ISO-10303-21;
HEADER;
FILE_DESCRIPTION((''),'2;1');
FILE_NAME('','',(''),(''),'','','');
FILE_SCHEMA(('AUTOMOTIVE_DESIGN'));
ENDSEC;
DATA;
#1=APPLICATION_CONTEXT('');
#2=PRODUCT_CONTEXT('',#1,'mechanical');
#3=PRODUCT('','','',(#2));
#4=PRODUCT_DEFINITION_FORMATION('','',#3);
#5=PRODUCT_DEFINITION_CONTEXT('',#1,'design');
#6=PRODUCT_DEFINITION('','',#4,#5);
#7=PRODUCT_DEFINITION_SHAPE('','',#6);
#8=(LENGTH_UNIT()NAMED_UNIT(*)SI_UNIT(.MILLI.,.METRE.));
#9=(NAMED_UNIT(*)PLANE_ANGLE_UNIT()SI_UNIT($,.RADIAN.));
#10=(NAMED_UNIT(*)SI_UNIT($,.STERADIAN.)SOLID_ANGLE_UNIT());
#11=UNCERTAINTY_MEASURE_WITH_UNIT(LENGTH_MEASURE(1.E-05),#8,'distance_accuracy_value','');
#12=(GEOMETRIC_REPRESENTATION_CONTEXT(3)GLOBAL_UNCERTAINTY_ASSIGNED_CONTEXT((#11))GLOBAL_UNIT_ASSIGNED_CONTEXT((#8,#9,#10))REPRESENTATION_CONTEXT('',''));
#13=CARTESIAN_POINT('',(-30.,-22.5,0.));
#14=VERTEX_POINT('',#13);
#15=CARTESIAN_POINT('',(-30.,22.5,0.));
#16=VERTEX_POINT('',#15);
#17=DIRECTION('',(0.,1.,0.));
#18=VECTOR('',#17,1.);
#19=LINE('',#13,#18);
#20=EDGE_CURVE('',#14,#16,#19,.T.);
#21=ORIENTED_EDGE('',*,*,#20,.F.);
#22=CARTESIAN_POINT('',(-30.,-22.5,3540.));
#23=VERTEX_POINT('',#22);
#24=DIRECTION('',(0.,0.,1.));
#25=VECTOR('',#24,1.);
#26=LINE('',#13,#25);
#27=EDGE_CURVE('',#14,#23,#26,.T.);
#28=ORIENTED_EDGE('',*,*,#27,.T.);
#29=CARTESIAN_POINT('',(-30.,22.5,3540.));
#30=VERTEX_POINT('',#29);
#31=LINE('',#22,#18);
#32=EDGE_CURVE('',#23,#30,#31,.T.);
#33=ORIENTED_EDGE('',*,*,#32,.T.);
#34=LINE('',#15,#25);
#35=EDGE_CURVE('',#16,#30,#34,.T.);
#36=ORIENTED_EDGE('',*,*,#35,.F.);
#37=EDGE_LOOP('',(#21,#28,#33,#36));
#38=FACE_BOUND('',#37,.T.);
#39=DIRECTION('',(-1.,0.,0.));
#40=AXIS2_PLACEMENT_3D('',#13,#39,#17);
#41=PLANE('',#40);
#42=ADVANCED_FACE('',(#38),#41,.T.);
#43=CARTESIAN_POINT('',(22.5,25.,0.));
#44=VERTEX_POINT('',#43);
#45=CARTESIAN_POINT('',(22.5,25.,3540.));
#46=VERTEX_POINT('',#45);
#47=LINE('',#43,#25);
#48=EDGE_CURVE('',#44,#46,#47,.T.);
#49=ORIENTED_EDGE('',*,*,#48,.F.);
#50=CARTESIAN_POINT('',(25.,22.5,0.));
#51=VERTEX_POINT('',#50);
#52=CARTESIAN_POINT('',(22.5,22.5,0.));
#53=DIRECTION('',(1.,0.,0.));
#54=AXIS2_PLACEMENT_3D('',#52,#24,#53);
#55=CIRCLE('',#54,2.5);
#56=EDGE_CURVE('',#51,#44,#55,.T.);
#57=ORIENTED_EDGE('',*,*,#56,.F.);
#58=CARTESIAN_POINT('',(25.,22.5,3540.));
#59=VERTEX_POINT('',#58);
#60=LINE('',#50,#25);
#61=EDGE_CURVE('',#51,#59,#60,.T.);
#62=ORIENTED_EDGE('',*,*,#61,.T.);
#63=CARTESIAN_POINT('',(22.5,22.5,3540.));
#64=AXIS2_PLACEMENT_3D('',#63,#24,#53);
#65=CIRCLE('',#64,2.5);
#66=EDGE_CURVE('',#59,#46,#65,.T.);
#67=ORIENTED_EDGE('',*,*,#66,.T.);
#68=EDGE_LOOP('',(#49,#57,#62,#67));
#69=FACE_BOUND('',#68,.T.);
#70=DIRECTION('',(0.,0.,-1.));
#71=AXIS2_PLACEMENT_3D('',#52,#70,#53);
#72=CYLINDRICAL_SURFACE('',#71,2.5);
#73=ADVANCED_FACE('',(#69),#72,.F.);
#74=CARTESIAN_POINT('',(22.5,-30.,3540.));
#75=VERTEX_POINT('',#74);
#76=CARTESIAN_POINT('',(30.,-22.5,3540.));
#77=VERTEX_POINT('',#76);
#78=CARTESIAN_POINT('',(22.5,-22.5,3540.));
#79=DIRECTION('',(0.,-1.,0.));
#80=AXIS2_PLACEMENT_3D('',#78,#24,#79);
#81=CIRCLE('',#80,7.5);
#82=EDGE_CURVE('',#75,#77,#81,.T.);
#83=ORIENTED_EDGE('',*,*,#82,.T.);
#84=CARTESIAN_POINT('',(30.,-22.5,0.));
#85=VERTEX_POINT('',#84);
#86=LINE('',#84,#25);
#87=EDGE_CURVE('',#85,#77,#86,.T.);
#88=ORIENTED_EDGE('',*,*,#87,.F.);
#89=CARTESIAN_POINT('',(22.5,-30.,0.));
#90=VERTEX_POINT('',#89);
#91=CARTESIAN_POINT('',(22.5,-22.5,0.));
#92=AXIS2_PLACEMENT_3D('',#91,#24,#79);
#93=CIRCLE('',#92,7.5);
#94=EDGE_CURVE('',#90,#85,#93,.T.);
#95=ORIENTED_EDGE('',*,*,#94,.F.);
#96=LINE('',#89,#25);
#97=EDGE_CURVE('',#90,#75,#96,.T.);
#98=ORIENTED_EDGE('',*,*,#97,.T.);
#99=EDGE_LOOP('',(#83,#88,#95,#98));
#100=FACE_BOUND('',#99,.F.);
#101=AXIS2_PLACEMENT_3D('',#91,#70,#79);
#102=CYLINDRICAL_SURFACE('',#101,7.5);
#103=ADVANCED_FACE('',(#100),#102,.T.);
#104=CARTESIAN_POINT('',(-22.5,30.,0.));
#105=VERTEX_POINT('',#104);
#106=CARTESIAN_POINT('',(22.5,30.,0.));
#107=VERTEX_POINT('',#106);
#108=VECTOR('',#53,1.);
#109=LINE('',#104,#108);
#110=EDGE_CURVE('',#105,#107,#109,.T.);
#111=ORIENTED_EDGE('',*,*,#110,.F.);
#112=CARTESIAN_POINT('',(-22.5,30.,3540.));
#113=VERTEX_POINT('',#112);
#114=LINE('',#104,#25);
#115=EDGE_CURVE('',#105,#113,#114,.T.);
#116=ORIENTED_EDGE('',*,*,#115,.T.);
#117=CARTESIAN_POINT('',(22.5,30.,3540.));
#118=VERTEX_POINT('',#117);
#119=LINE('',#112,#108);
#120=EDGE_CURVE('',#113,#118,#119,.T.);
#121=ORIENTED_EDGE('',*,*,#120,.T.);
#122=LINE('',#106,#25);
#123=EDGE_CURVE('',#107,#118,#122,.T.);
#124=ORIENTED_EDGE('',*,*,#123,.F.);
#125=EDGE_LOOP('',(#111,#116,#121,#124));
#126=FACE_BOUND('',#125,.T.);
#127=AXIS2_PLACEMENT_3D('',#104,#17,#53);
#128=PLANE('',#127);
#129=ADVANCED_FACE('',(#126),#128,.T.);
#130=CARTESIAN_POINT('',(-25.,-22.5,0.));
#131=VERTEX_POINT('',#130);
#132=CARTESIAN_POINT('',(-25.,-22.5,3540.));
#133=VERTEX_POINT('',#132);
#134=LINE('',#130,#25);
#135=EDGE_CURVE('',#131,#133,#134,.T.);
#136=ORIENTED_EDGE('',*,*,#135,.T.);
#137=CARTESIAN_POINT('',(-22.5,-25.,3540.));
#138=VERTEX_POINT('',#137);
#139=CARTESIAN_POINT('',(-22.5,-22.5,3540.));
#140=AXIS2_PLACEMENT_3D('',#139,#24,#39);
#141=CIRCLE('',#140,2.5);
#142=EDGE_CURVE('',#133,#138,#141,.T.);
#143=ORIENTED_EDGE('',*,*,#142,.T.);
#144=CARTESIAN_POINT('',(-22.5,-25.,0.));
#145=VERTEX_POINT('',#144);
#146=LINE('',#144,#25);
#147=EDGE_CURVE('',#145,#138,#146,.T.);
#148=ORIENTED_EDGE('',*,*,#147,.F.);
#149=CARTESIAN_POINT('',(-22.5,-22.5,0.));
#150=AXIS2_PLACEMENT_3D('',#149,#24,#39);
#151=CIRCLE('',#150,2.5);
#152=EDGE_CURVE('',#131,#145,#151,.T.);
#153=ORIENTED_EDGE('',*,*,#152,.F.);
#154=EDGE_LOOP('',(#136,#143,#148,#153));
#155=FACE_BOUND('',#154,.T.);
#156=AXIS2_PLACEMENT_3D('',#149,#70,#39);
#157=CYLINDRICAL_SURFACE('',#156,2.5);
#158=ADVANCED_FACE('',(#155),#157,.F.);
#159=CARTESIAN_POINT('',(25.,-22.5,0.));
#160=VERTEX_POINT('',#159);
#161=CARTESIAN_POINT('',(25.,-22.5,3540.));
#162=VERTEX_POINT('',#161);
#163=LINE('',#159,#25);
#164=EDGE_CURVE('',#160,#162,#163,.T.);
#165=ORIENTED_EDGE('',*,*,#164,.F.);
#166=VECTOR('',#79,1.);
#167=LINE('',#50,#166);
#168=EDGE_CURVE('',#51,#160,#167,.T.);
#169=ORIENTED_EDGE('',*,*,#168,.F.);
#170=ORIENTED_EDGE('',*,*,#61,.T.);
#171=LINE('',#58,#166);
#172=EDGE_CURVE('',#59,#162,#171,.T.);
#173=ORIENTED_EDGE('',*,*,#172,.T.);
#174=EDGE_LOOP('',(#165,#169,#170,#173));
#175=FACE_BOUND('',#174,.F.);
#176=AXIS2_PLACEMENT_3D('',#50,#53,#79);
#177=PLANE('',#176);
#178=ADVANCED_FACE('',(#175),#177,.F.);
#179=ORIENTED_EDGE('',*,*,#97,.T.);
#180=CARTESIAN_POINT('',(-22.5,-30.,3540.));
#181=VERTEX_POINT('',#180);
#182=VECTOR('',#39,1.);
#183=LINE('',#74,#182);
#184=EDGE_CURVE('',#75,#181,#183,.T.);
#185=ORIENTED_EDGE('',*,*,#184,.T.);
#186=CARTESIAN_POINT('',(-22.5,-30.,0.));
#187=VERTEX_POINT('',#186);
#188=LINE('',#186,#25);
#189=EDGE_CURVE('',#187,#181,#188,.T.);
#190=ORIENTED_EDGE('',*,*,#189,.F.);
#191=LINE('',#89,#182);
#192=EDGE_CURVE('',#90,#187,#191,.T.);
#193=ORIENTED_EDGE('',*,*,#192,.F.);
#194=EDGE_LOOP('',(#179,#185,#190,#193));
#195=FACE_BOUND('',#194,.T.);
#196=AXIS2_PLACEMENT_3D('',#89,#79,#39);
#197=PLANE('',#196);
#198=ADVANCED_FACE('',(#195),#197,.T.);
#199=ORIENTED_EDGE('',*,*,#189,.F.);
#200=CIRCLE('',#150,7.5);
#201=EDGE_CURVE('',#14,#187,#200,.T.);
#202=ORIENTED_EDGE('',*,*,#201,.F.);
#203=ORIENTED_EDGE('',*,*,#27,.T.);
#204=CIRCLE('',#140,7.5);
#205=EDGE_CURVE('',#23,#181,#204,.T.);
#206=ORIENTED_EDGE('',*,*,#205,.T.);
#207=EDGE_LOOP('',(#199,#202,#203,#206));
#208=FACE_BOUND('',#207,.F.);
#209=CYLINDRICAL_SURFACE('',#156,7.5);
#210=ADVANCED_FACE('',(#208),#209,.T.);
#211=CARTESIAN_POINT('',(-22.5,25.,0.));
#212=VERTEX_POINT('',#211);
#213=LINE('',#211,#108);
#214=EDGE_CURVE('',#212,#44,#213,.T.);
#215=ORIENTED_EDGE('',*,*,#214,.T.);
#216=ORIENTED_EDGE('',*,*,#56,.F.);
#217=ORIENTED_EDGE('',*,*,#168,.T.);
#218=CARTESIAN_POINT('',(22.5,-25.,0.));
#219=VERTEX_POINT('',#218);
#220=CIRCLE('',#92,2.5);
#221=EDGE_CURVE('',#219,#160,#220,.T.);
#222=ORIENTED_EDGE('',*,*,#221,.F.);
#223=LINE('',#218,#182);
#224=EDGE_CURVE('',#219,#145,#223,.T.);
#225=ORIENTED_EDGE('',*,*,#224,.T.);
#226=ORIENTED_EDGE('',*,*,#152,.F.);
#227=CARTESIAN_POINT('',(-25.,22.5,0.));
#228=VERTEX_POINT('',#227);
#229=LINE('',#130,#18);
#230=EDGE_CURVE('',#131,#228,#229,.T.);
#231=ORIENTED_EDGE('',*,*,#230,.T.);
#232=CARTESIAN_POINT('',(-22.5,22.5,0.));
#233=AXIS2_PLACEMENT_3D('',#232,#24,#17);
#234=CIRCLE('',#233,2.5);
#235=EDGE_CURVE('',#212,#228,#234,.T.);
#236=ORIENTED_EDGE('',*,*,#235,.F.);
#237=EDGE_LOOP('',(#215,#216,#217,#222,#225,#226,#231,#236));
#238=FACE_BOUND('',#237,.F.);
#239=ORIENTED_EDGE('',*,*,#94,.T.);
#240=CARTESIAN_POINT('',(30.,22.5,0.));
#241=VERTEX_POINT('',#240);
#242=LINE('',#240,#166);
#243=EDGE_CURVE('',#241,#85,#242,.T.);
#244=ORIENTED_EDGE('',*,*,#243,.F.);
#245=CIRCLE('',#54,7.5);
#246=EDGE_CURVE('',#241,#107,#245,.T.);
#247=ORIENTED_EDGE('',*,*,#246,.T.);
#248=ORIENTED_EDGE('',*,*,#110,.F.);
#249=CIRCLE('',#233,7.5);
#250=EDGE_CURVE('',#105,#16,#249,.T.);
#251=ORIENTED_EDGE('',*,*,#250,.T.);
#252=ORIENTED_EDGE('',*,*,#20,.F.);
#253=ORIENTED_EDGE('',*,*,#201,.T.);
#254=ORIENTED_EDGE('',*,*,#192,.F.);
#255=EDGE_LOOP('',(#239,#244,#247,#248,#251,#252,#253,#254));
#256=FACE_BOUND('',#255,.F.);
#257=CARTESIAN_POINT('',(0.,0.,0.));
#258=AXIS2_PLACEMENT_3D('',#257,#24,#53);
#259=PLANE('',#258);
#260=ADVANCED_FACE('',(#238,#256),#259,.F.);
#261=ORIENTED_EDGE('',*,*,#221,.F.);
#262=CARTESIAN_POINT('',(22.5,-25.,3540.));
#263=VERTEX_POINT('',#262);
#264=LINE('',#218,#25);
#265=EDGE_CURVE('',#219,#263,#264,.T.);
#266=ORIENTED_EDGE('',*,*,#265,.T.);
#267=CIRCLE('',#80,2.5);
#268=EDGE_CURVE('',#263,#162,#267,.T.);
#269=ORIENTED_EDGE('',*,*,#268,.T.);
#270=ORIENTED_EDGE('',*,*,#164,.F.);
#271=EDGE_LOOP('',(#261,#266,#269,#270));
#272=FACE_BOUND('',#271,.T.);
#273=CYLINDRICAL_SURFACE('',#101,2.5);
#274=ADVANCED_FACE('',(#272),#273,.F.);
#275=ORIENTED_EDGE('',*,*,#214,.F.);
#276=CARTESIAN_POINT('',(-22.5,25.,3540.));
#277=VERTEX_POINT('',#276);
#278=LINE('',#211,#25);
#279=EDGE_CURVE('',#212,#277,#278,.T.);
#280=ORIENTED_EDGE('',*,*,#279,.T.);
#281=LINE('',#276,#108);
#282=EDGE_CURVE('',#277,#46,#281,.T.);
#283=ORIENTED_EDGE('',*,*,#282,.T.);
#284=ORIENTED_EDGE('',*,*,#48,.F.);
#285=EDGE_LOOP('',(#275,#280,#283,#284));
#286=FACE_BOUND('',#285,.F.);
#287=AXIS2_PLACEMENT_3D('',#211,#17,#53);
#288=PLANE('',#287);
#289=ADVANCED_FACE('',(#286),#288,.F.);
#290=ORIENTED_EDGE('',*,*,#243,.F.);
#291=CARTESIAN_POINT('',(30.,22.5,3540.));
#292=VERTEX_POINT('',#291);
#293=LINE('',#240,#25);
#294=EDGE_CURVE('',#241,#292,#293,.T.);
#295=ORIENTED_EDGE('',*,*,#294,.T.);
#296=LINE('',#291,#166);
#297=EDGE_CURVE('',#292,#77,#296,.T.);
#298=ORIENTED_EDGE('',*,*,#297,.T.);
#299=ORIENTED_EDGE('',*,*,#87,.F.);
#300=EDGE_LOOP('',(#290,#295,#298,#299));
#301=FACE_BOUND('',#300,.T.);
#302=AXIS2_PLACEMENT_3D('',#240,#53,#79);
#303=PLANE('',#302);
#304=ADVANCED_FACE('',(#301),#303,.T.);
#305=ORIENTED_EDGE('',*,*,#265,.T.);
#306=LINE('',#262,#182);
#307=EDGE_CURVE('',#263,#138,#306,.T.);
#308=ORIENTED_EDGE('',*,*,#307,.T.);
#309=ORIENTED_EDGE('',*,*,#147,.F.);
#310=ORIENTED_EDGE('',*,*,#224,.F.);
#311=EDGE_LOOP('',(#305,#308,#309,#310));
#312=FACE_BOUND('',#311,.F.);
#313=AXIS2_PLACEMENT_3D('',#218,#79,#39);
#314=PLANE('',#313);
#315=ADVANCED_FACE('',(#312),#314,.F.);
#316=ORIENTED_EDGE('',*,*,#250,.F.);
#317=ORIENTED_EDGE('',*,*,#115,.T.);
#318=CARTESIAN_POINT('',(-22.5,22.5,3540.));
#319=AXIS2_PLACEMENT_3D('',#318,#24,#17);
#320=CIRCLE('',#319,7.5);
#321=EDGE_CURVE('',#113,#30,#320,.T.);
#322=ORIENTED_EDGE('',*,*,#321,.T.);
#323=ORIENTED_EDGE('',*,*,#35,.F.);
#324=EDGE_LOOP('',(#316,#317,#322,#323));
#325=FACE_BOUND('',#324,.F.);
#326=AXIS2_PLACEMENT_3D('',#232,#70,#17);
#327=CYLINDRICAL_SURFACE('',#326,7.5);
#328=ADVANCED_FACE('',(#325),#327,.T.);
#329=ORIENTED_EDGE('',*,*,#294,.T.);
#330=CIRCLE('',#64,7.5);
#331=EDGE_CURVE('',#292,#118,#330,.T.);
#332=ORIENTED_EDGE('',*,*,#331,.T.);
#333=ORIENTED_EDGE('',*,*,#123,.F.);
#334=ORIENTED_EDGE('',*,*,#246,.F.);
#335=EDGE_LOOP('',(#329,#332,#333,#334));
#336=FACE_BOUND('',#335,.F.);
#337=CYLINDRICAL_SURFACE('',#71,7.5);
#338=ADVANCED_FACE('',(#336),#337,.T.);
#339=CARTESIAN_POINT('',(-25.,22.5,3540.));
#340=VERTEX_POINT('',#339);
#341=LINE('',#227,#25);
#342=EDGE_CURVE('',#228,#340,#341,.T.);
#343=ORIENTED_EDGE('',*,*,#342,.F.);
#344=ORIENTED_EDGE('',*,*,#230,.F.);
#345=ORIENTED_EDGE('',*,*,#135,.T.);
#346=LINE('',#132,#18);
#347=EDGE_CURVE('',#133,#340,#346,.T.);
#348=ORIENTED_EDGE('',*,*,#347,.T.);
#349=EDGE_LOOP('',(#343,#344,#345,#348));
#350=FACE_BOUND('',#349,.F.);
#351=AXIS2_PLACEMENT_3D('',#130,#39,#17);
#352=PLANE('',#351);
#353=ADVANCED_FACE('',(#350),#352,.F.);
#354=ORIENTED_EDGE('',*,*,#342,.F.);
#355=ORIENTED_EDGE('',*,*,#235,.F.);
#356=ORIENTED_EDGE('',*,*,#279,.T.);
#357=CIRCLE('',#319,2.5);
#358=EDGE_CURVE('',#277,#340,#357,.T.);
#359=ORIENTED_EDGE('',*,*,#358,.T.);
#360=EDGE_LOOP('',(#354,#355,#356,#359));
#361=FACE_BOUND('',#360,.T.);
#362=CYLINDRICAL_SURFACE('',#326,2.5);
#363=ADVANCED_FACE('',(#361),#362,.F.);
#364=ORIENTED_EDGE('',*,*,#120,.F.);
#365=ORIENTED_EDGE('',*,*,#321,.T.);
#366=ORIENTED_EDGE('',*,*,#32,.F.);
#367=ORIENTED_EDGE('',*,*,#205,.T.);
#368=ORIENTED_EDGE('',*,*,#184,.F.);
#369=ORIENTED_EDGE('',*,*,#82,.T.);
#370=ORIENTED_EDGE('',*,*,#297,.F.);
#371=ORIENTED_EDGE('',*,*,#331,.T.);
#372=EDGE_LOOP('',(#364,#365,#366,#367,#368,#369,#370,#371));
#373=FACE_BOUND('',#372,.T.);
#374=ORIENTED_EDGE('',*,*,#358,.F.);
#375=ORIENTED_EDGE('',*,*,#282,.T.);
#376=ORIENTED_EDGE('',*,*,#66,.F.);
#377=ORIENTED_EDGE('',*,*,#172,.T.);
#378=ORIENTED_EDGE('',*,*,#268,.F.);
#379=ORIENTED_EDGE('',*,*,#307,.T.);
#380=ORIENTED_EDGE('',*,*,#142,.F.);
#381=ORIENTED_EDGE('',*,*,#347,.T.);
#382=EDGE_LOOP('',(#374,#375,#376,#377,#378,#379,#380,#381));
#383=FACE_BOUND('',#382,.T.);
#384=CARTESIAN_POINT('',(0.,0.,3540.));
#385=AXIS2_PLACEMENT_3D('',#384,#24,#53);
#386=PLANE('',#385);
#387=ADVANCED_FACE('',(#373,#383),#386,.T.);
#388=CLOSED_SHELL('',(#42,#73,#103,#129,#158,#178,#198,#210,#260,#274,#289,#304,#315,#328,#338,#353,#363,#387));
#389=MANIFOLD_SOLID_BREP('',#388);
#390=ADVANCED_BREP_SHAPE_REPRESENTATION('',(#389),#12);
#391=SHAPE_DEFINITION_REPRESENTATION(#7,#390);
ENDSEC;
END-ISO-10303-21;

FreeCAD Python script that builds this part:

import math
import FreeCAD as App
import Part
import Sketcher

V = App.Vector

doc = App.newDocument("Part")
params = doc.addObject("Spreadsheet::Sheet", "Params")
for row, (alias, value) in enumerate([
    ("sketch1_radius", "7.5 mm"),
    ("sketch1_radius2", "2.5 mm"),
    ("pad1_length", "3540 mm"),
], start=1):
    params.set(f"A{row}", alias)
    params.set(f"B{row}", "=" + value)
    params.setAlias(f"B{row}", alias)

body = doc.addObject("PartDesign::Body", "Body")

# Sketch on XY plane
sketch1 = body.newObject("Sketcher::SketchObject", "Sketch")
sketch1.AttachmentSupport = (doc.getObject("XY_Plane"), [""])
sketch1.MapMode = "FlatFace"
sketch1.addGeometry([
    Part.LineSegment(V(-30, 22.5, 0), V(-30, -22.5, 0)),  # 0
    Part.ArcOfCircle(Part.Circle(V(-22.5, -22.5, 0), V(0, 0, 1), 7.5), math.radians(180), math.radians(270)),  # 1
    Part.LineSegment(V(-22.5, -30, 0), V(22.5, -30, 0)),  # 2
    Part.ArcOfCircle(Part.Circle(V(22.5, -22.5, 0), V(0, 0, 1), 7.5), math.radians(-90), math.radians(0)),  # 3
    Part.LineSegment(V(30, -22.5, 0), V(30, 22.5, 0)),  # 4
    Part.ArcOfCircle(Part.Circle(V(22.5, 22.5, 0), V(0, 0, 1), 7.5), math.radians(0), math.radians(90)),  # 5
    Part.LineSegment(V(22.5, 30, 0), V(-22.5, 30, 0)),  # 6
    Part.ArcOfCircle(Part.Circle(V(-22.5, 22.5, 0), V(0, 0, 1), 7.5), math.radians(90), math.radians(180)),  # 7
    Part.ArcOfCircle(Part.Circle(V(-22.5, 22.5, 0), V(0, 0, 1), 2.5), math.radians(90), math.radians(180)),  # 8
    Part.LineSegment(V(-22.5, 25, 0), V(22.5, 25, 0)),  # 9
    Part.ArcOfCircle(Part.Circle(V(22.5, 22.5, 0), V(0, 0, 1), 2.5), math.radians(0), math.radians(90)),  # 10
    Part.LineSegment(V(25, 22.5, 0), V(25, -22.5, 0)),  # 11
    Part.ArcOfCircle(Part.Circle(V(22.5, -22.5, 0), V(0, 0, 1), 2.5), math.radians(-90), math.radians(0)),  # 12
    Part.LineSegment(V(22.5, -25, 0), V(-22.5, -25, 0)),  # 13
    Part.ArcOfCircle(Part.Circle(V(-22.5, -22.5, 0), V(0, 0, 1), 2.5), math.radians(180), math.radians(270)),  # 14
    Part.LineSegment(V(-25, -22.5, 0), V(-25, 22.5, 0)),  # 15
], False)
sketch1.addConstraint([
    Sketcher.Constraint("Tangent", 0, 2, 1, 1),
    Sketcher.Constraint("Tangent", 1, 2, 2, 1),
    Sketcher.Constraint("Tangent", 2, 2, 3, 1),
    Sketcher.Constraint("Tangent", 3, 2, 4, 1),
    Sketcher.Constraint("Tangent", 4, 2, 5, 1),
    Sketcher.Constraint("Tangent", 5, 2, 6, 1),
    Sketcher.Constraint("Tangent", 6, 2, 7, 1),
    Sketcher.Constraint("Tangent", 7, 2, 0, 1),
    Sketcher.Constraint("Tangent", 8, 1, 9, 1),
    Sketcher.Constraint("Tangent", 9, 2, 10, 2),
    Sketcher.Constraint("Tangent", 10, 1, 11, 1),
    Sketcher.Constraint("Tangent", 11, 2, 12, 2),
    Sketcher.Constraint("Tangent", 12, 1, 13, 1),
    Sketcher.Constraint("Tangent", 13, 2, 14, 2),
    Sketcher.Constraint("Tangent", 14, 1, 15, 1),
    Sketcher.Constraint("Tangent", 15, 2, 8, 2),
    Sketcher.Constraint("Vertical", 0),
    Sketcher.Constraint("Horizontal", 2),
    Sketcher.Constraint("Vertical", 4),
    Sketcher.Constraint("Horizontal", 6),
    Sketcher.Constraint("Horizontal", 9),
    Sketcher.Constraint("Vertical", 11),
    Sketcher.Constraint("Horizontal", 13),
    Sketcher.Constraint("Vertical", 15),
    Sketcher.Constraint("Coincident", 8, 3, 7, 3),
    Sketcher.Constraint("Coincident", 10, 3, 5, 3),
    Sketcher.Constraint("Coincident", 12, 3, 3, 3),
    Sketcher.Constraint("Equal", 1, 3),
    Sketcher.Constraint("Equal", 3, 5),
    Sketcher.Constraint("Equal", 5, 7),
    Sketcher.Constraint("Equal", 12, 14),
    Sketcher.Constraint("Symmetric", 1, 3, 5, 3, -1, 1),
    Sketcher.Constraint("Equal", 13, 0),
    Sketcher.Constraint("Radius", 1, 7.5),
    Sketcher.Constraint("Radius", 8, 2.5),
    Sketcher.Constraint("DistanceX", 0, 2, -1, 1, 30.0),
])
sketch1.setExpression("Constraints[33]", "Params.sketch1_radius")
sketch1.setExpression("Constraints[34]", "Params.sketch1_radius2")
pad1 = body.newObject("PartDesign::Pad", "Pad")
pad1.Profile = sketch1
pad1.setExpression("Length", "Params.pad1_length")

doc.recompute()
